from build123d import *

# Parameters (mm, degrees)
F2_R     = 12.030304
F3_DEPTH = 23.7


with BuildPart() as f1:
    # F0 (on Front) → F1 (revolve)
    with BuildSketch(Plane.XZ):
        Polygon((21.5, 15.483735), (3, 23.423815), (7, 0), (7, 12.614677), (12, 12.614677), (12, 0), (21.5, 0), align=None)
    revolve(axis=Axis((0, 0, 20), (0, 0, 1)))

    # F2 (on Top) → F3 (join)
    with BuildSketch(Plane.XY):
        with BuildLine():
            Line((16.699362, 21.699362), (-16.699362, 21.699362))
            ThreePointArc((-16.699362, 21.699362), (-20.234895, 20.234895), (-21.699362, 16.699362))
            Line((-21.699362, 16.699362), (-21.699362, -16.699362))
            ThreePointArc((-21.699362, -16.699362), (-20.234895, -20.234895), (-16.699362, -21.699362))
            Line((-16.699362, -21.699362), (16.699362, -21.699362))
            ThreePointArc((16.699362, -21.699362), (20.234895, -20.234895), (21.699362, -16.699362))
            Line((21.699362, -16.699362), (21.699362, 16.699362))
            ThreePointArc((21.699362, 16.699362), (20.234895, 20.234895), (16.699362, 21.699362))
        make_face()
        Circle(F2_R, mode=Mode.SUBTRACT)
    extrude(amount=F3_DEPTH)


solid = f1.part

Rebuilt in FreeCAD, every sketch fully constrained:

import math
import FreeCAD as App
import Part
import Sketcher
from FreeCAD import Vector
Q = App.Units.Quantity

doc = App.newDocument("Part")
body = doc.addObject("PartDesign::Body", "Body")

sketch1 = body.newObject("Sketcher::SketchObject", "Sketch")
sketch1.AttachmentSupport = (doc.getObject("XZ_Plane"), [""])
sketch1.MapMode = "FlatFace"
sketch1.addGeometry(Part.LineSegment(Vector(21.5, 15.483735, 0), Vector(3, 23.423815, 0)), False)
sketch1.addGeometry(Part.LineSegment(Vector(3, 23.423815, 0), Vector(7, 0, 0)), False)
sketch1.addGeometry(Part.LineSegment(Vector(7, 0, 0), Vector(7, 12.614677, 0)), False)
sketch1.addGeometry(Part.LineSegment(Vector(7, 12.614677, 0), Vector(12, 12.614677, 0)), False)
sketch1.addGeometry(Part.LineSegment(Vector(12, 12.614677, 0), Vector(12, 0, 0)), False)
sketch1.addGeometry(Part.LineSegment(Vector(12, 0, 0), Vector(21.5, 0, 0)), False)
sketch1.addGeometry(Part.LineSegment(Vector(21.5, 0, 0), Vector(21.5, 15.483735, 0)), False)
sketch1.addConstraint(Sketcher.Constraint("Coincident", 0, 2, 1, 1))
sketch1.addConstraint(Sketcher.Constraint("Coincident", 1, 2, 2, 1))
sketch1.addConstraint(Sketcher.Constraint("Coincident", 2, 2, 3, 1))
sketch1.addConstraint(Sketcher.Constraint("Coincident", 3, 2, 4, 1))
sketch1.addConstraint(Sketcher.Constraint("Coincident", 4, 2, 5, 1))
sketch1.addConstraint(Sketcher.Constraint("Coincident", 5, 2, 6, 1))
sketch1.addConstraint(Sketcher.Constraint("Coincident", 6, 2, 0, 1))
sketch1.addConstraint(Sketcher.Constraint("Vertical", 2))
sketch1.addConstraint(Sketcher.Constraint("Horizontal", 3))
sketch1.addConstraint(Sketcher.Constraint("Vertical", 4))
sketch1.addConstraint(Sketcher.Constraint("Horizontal", 5))
sketch1.addConstraint(Sketcher.Constraint("Vertical", 6))
sketch1.addConstraint(Sketcher.Constraint("PointOnObject", 1, 2, -1))
sketch1.addConstraint(Sketcher.Constraint("PointOnObject", 4, 2, -1))
sketch1.addConstraint(Sketcher.Constraint("DistanceX", 3, 1, 3, 2, Q("5 mm")))
sketch1.addConstraint(Sketcher.Constraint("DistanceX", 5, 1, 5, 2, Q("9.5 mm")))
sketch1.addConstraint(Sketcher.Constraint("DistanceX", -1, 1, 0, 2, Q("3 mm")))
sketch1.addConstraint(Sketcher.Constraint("DistanceX", -1, 1, 1, 2, Q("7 mm")))
sketch1.addConstraint(Sketcher.Constraint("DistanceY", 2, 1, 2, 2, Q("12.614677 mm")))
sketch1.addConstraint(Sketcher.Constraint("DistanceY", 6, 1, 6, 2, Q("15.483735 mm")))
sketch1.addConstraint(Sketcher.Constraint("DistanceY", 2, 2, 0, 2, Q("10.809138 mm")))
revolution = body.newObject("PartDesign::Revolution", "Revolution")
revolution.Profile = sketch1
revolution.ReferenceAxis = (sketch1, ["V_Axis"])
revolution.Angle = 360

sketch2 = body.newObject("Sketcher::SketchObject", "Sketch001")
sketch2.AttachmentSupport = (doc.getObject("XY_Plane"), [""])
sketch2.MapMode = "FlatFace"
sketch2.addGeometry(Part.LineSegment(Vector(16.699362, 21.699362, 0), Vector(-16.699362, 21.699362, 0)), False)
sketch2.addGeometry(Part.ArcOfCircle(Part.Circle(Vector(-16.699359, 16.699359, 0), Vector(0, 0, 1), 5.000003), math.radians(90.000035), math.radians(179.999965)), False)
sketch2.addGeometry(Part.LineSegment(Vector(-21.699362, 16.699362, 0), Vector(-21.699362, -16.699362, 0)), False)
sketch2.addGeometry(Part.ArcOfCircle(Part.Circle(Vector(-16.699359, -16.699359, 0), Vector(0, 0, 1), 5.000003), math.radians(-179.999965), math.radians(-90.000035)), False)
sketch2.addGeometry(Part.LineSegment(Vector(-16.699362, -21.699362, 0), Vector(16.699362, -21.699362, 0)), False)
sketch2.addGeometry(Part.ArcOfCircle(Part.Circle(Vector(16.699359, -16.699359, 0), Vector(0, 0, 1), 5.000003), math.radians(-89.999965), math.radians(-0.000035)), False)
sketch2.addGeometry(Part.LineSegment(Vector(21.699362, -16.699362, 0), Vector(21.699362, 16.699362, 0)), False)
sketch2.addGeometry(Part.ArcOfCircle(Part.Circle(Vector(16.699359, 16.699359, 0), Vector(0, 0, 1), 5.000003), math.radians(0.000035), math.radians(89.999965)), False)
sketch2.addGeometry(Part.Circle(Vector(0, 0, 0), Vector(0, 0, 1), 12.030304), False)
sketch2.addConstraint(Sketcher.Constraint("Tangent", 0, 2, 1, 1))
sketch2.addConstraint(Sketcher.Constraint("Tangent", 1, 2, 2, 1))
sketch2.addConstraint(Sketcher.Constraint("Tangent", 2, 2, 3, 1))
sketch2.addConstraint(Sketcher.Constraint("Tangent", 3, 2, 4, 1))
sketch2.addConstraint(Sketcher.Constraint("Tangent", 4, 2, 5, 1))
sketch2.addConstraint(Sketcher.Constraint("Tangent", 5, 2, 6, 1))
sketch2.addConstraint(Sketcher.Constraint("Tangent", 6, 2, 7, 1))
sketch2.addConstraint(Sketcher.Constraint("Tangent", 7, 2, 0, 1))
sketch2.addConstraint(Sketcher.Constraint("Horizontal", 0))
sketch2.addConstraint(Sketcher.Constraint("Vertical", 2))
sketch2.addConstraint(Sketcher.Constraint("Horizontal", 4))
sketch2.addConstraint(Sketcher.Constraint("Vertical", 6))
sketch2.addConstraint(Sketcher.Constraint("Coincident", 8, 3, -1, 1))
sketch2.addConstraint(Sketcher.Constraint("Equal", 1, 3))
sketch2.addConstraint(Sketcher.Constraint("Equal", 3, 5))
sketch2.addConstraint(Sketcher.Constraint("Equal", 5, 7))
sketch2.addConstraint(Sketcher.Constraint("Symmetric", 1, 3, 5, 3, -1, 1))
sketch2.addConstraint(Sketcher.Constraint("Equal", 4, 2))
sketch2.addConstraint(Sketcher.Constraint("DistanceX", 1, 2, 0, 2, Q("5 mm")))
sketch2.addConstraint(Sketcher.Constraint("Diameter", 8, Q("24.060608 mm")))
sketch2.addConstraint(Sketcher.Constraint("DistanceX", 0, 2, 0, 1, Q("33.398724 mm")))
pad1 = body.newObject("PartDesign::Pad", "Pad")
pad1.Profile = sketch2
pad1.Length = 23.7

doc.recompute()
